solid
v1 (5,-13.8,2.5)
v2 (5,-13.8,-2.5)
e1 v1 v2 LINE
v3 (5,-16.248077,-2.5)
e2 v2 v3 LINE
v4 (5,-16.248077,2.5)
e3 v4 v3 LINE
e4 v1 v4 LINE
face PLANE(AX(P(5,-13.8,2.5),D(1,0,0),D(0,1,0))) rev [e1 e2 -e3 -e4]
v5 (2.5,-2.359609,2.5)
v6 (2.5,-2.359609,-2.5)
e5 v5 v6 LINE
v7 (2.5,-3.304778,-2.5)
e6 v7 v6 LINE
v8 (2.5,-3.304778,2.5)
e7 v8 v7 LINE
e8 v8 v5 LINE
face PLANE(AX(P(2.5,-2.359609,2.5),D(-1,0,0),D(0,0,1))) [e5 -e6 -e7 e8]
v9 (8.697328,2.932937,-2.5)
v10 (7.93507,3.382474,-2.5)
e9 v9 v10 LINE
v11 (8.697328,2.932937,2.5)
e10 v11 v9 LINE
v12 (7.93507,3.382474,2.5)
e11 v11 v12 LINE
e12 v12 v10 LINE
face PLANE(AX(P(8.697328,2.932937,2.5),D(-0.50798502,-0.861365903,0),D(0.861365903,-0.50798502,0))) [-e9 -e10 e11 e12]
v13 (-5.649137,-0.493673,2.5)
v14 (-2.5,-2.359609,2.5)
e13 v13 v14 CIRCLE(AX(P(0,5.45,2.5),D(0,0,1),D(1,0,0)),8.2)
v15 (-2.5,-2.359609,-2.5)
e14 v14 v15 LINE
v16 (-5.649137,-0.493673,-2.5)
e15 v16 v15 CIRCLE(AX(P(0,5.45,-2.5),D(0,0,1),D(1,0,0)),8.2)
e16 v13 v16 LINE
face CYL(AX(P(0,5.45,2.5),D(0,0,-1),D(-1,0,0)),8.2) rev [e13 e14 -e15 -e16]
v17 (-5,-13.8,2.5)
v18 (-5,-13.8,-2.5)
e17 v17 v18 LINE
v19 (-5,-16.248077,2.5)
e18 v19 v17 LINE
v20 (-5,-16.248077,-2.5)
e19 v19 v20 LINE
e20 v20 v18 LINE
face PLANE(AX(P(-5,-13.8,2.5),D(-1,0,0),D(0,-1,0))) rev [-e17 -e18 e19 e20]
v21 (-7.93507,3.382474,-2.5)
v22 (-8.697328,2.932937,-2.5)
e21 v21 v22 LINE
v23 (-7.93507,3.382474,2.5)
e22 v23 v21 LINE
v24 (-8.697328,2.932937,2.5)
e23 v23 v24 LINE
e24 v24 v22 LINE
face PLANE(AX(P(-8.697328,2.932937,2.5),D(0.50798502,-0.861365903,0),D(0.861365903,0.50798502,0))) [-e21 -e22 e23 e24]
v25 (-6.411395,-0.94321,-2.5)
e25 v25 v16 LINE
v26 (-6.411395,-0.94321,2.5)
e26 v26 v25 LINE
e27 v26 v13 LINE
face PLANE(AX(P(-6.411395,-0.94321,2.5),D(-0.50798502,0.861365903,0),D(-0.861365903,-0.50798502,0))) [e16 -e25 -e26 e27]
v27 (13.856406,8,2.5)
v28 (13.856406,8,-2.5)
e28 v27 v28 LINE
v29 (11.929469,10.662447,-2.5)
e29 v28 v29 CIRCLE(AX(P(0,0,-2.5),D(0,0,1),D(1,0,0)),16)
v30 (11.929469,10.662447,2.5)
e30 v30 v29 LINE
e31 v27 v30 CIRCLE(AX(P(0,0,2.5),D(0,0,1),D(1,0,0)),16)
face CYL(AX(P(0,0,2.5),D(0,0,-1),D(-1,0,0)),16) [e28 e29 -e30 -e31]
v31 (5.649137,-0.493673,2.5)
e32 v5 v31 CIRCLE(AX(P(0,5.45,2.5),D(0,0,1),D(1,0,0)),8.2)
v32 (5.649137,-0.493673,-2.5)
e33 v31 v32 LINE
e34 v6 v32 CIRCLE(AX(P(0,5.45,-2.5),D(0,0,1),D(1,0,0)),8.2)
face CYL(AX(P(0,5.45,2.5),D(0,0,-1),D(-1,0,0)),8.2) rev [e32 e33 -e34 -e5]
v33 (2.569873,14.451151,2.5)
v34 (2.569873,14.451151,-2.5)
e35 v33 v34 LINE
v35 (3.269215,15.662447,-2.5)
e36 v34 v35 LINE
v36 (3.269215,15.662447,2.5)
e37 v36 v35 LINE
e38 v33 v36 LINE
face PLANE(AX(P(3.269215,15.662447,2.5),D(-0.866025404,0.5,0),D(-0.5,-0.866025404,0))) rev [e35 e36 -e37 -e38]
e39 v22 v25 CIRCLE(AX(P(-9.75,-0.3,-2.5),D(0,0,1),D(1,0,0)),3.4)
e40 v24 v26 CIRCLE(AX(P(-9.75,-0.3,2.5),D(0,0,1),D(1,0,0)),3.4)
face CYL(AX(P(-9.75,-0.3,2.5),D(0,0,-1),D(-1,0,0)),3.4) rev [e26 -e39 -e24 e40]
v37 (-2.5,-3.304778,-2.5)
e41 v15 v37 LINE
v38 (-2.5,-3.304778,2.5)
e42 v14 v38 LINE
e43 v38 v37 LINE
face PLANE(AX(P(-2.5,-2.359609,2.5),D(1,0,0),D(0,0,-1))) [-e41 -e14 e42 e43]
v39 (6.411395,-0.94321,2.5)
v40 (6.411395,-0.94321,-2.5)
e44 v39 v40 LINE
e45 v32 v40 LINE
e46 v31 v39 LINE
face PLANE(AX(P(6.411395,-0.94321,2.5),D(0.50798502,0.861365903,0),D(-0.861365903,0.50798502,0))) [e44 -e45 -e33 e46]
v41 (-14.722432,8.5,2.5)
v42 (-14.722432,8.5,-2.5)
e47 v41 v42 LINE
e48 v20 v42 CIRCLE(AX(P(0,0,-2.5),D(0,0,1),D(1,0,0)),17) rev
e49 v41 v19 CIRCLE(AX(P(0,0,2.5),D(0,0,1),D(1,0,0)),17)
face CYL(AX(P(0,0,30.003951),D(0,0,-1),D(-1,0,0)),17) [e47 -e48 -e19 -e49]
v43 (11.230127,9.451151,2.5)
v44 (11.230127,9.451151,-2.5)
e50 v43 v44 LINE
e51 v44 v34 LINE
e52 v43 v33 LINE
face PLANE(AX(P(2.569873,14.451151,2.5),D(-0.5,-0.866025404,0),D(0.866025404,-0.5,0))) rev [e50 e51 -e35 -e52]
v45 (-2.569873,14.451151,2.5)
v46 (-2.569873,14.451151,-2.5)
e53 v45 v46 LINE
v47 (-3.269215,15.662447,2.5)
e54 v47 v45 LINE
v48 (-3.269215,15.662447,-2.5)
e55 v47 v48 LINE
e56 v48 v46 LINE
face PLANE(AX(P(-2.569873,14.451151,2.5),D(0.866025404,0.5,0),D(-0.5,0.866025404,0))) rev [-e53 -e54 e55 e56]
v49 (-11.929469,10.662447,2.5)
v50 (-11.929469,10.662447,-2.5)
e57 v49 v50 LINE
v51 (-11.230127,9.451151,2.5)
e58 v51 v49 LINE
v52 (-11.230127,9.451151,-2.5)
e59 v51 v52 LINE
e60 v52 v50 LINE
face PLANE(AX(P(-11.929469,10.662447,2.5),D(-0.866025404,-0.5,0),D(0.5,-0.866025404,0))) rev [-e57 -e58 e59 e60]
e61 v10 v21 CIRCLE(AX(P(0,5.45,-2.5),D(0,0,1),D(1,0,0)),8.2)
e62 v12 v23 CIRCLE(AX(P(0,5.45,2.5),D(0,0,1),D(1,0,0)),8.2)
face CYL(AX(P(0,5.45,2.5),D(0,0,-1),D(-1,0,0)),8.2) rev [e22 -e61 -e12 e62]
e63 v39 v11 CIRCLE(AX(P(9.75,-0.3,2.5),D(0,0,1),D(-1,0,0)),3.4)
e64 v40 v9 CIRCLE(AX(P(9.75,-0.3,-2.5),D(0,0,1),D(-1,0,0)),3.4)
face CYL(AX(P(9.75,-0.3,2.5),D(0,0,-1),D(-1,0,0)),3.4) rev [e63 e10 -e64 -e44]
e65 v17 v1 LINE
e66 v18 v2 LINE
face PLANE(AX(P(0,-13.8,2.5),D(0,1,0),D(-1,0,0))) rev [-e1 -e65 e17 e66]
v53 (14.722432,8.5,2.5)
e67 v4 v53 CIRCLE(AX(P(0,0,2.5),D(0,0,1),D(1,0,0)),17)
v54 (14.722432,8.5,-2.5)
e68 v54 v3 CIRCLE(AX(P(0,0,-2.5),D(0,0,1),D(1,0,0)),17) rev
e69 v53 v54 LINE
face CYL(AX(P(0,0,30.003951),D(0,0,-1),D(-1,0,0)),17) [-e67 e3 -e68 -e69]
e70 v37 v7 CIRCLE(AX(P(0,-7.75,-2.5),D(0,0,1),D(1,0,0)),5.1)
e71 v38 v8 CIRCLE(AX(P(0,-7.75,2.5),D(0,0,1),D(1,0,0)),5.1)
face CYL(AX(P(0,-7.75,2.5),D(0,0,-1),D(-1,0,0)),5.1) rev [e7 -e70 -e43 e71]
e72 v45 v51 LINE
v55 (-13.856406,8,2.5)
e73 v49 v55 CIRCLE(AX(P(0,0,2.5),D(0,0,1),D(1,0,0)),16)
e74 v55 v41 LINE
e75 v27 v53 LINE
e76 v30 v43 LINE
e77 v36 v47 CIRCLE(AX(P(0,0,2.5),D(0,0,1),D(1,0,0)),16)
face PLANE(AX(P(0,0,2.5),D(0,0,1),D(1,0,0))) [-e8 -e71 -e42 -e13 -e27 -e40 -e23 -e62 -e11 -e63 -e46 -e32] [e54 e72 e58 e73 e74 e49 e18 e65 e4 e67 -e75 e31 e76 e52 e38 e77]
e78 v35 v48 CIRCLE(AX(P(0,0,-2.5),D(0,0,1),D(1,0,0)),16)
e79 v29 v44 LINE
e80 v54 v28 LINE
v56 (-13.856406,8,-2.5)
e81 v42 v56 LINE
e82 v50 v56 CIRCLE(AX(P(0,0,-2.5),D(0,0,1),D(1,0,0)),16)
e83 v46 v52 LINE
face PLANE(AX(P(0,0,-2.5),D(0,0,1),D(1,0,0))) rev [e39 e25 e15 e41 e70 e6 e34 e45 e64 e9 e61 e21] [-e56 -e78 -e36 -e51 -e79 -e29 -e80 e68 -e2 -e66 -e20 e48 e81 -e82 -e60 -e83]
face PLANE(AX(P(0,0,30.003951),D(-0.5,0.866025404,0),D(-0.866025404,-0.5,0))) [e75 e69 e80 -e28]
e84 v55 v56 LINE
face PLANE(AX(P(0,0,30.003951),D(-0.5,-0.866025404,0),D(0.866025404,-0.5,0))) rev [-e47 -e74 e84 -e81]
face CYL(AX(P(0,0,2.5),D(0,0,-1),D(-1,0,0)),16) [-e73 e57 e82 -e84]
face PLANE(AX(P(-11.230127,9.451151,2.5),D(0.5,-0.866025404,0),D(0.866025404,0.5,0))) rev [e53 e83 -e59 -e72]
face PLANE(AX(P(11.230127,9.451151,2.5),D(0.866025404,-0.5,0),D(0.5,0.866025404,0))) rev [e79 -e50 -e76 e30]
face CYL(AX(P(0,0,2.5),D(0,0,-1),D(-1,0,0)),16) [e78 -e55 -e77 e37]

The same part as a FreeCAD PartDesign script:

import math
import FreeCAD as App
import Part
import Sketcher
from FreeCAD import Vector
Q = App.Units.Quantity

doc = App.newDocument("Part")
body = doc.addObject("PartDesign::Body", "Body")

sketch1 = body.newObject("Sketcher::SketchObject", "Sketch")
sketch1.AttachmentSupport = (doc.getObject("XY_Plane"), [""])
sketch1.MapMode = "FlatFace"
sketch1.addGeometry([
    Part.LineSegment(Vector(2.6, 14.5, 0), Vector(3.3, 15.7, 0)),
    Part.ArcOfCircle(Part.Circle(Vector(0, 0, 0), Vector(0, 0, 1), 16), math.radians(78), math.radians(102)),
    Part.LineSegment(Vector(-3.3, 15.7, 0), Vector(-2.6, 14.5, 0)),
    Part.LineSegment(Vector(-2.6, 14.5, 0), Vector(-11.2, 9.5, 0)),
    Part.LineSegment(Vector(-11.2, 9.5, 0), Vector(-11.9, 10.7, 0)),
    Part.ArcOfCircle(Part.Circle(Vector(0, 0, 0), Vector(0, 0, 1), 16), math.radians(138), math.radians(252)),
    Part.LineSegment(Vector(-5, -15.2, 0), Vector(-5, -13.8, 0)),
    Part.LineSegment(Vector(-5, -13.8, 0), Vector(5, -13.8, 0)),
    Part.LineSegment(Vector(5, -13.8, 0), Vector(5, -15.2, 0)),
    Part.ArcOfCircle(Part.Circle(Vector(0, 0, 0), Vector(0, 0, 1), 16), math.radians(-72), math.radians(42)),
    Part.LineSegment(Vector(11.9, 10.7, 0), Vector(11.2, 9.5, 0)),
    Part.LineSegment(Vector(11.2, 9.5, 0), Vector(2.6, 14.5, 0)),
    Part.ArcOfCircle(Part.Circle(Vector(0, 5.5, 0), Vector(0, 0, 1), 8.2), math.radians(-134), math.radians(-108)),
    Part.LineSegment(Vector(-5.6, -0.5, 0), Vector(-6.4, -0.9, 0)),
    Part.ArcOfCircle(Part.Circle(Vector(-9.8, -0.3, 0), Vector(0, 0, 1), 3.4), math.radians(72), math.radians(349)),
    Part.LineSegment(Vector(-8.7, 2.9, 0), Vector(-7.9, 3.4, 0)),
    Part.ArcOfCircle(Part.Circle(Vector(0, 5.5, 0), Vector(0, 0, 1), 8.2), math.radians(-15), math.radians(195)),
    Part.LineSegment(Vector(7.9, 3.4, 0), Vector(8.7, 2.9, 0)),
    Part.ArcOfCircle(Part.Circle(Vector(9.8, -0.3, 0), Vector(0, 0, 1), 3.4), math.radians(-169), math.radians(108)),
    Part.LineSegment(Vector(6.4, -0.9, 0), Vector(5.6, -0.5, 0)),
    Part.ArcOfCircle(Part.Circle(Vector(0, 5.5, 0), Vector(0, 0, 1), 8.2), math.radians(-72), math.radians(-46)),
    Part.LineSegment(Vector(2.5, -2.4, 0), Vector(2.5, -3.3, 0)),
    Part.ArcOfCircle(Part.Circle(Vector(0, -7.8, 0), Vector(0, 0, 1), 5.1), math.radians(119), math.radians(421)),
    Part.LineSegment(Vector(-2.5, -3.3, 0), Vector(-2.5, -2.4, 0)),
], False)
sketch1.addConstraint([
    Sketcher.Constraint("Coincident", 0, 2, 1, 1),
    Sketcher.Constraint("Coincident", 1, 2, 2, 1),
    Sketcher.Constraint("Coincident", 2, 2, 3, 1),
    Sketcher.Constraint("Coincident", 3, 2, 4, 1),
    Sketcher.Constraint("Coincident", 4, 2, 5, 1),
    Sketcher.Constraint("Coincident", 5, 2, 6, 1),
    Sketcher.Constraint("Coincident", 6, 2, 7, 1),
    Sketcher.Constraint("Coincident", 7, 2, 8, 1),
    Sketcher.Constraint("Coincident", 8, 2, 9, 1),
    Sketcher.Constraint("Coincident", 9, 2, 10, 1),
    Sketcher.Constraint("Coincident", 10, 2, 11, 1),
    Sketcher.Constraint("Coincident", 11, 2, 0, 1),
    Sketcher.Constraint("Coincident", 12, 1, 13, 1),
    Sketcher.Constraint("Coincident", 13, 2, 14, 2),
    Sketcher.Constraint("Coincident", 14, 1, 15, 1),
    Sketcher.Constraint("Coincident", 15, 2, 16, 2),
    Sketcher.Constraint("Coincident", 16, 1, 17, 1),
    Sketcher.Constraint("Coincident", 17, 2, 18, 2),
    Sketcher.Constraint("Coincident", 18, 1, 19, 1),
    Sketcher.Constraint("Coincident", 19, 2, 20, 2),
    Sketcher.Constraint("Coincident", 20, 1, 21, 1),
    Sketcher.Constraint("Coincident", 21, 2, 22, 2),
    Sketcher.Constraint("Coincident", 22, 1, 23, 1),
    Sketcher.Constraint("Coincident", 23, 2, 12, 2),
    Sketcher.Constraint("Vertical", 6),
    Sketcher.Constraint("Horizontal", 7),
    Sketcher.Constraint("Vertical", 8),
    Sketcher.Constraint("Vertical", 21),
    Sketcher.Constraint("Vertical", 23),
    Sketcher.Constraint("Coincident", 1, 3, -1, 1),
    Sketcher.Constraint("Coincident", 5, 3, -1, 1),
    Sketcher.Constraint("Coincident", 9, 3, -1, 1),
    Sketcher.Constraint("Coincident", 16, 3, 12, 3),
    Sketcher.Constraint("Coincident", 20, 3, 12, 3),
    Sketcher.Constraint("Equal", 1, 5),
    Sketcher.Constraint("Equal", 5, 9),
    Sketcher.Constraint("Equal", 12, 16),
    Sketcher.Constraint("Equal", 14, 18),
    Sketcher.Constraint("Equal", 16, 20),
    Sketcher.Constraint("Symmetric", 14, 3, 18, 3, -2),
    Sketcher.Constraint("Symmetric", 3, 2, 10, 2, -2),
    Sketcher.Constraint("Symmetric", 2, 2, 11, 2, -2),
    Sketcher.Constraint("Symmetric", 15, 2, 16, 1, -2),
    Sketcher.Constraint("Symmetric", 21, 2, 22, 1, -2),
    Sketcher.Constraint("Perpendicular", 2, 3),
    Sketcher.Constraint("Perpendicular", 3, 4),
    Sketcher.Constraint("Parallel", 0, 10),
    Sketcher.Constraint("Perpendicular", 10, 11),
    Sketcher.Constraint("Parallel", 13, 15),
    Sketcher.Constraint("Parallel", 17, 19),
    Sketcher.Constraint("Horizontal", 5, 2, 8, 2),
    Sketcher.Constraint("Horizontal", 14, 1, 17, 2),
    Sketcher.Constraint("Horizontal", 13, 2, 18, 1),
    Sketcher.Constraint("Equal", 2, 4),
    Sketcher.Constraint("Equal", 13, 15),
    Sketcher.Constraint("Radius", 1, Q("16 mm")),
    Sketcher.Constraint("Radius", 12, Q("8.2 mm")),
    Sketcher.Constraint("Radius", 14, Q("3.4 mm")),
    Sketcher.Constraint("Radius", 22, Q("5.1 mm")),
    Sketcher.Constraint("DistanceX", 7, 1, 7, 2, Q("10 mm")),
    Sketcher.Constraint("Angle", 0, Q("60 deg")),
    Sketcher.Constraint("Distance", 3, Q("10 mm")),
    Sketcher.Constraint("DistanceY", 14, 3, -1, 1, Q("0.3 mm")),
    Sketcher.Constraint("DistanceY", 6, 2, -1, 1, Q("13.8 mm")),
    Sketcher.Constraint("DistanceX", -1, 1, 20, 1, Q("2.5 mm")),
    Sketcher.Constraint("DistanceY", -1, 1, 12, 3, Q("5.45 mm")),
    Sketcher.Constraint("DistanceX", 14, 3, -1, 1, Q("9.75 mm")),
    Sketcher.Constraint("DistanceY", 22, 3, -1, 1, Q("7.75 mm")),
    Sketcher.Constraint("DistanceX", 3, 2, 14, 1, Q("2.532799 mm")),
    Sketcher.Constraint("DistanceY", 20, 1, 18, 1, Q("1.4164 mm")),
    Sketcher.Constraint("Distance", 13, Q("0.884941 mm")),
])
pad1 = body.newObject("PartDesign::Pad", "Pad")
pad1.Profile = sketch1
pad1.Length = 5
pad1.Midplane = True

sketch2 = body.newObject("Sketcher::SketchObject", "Sketch001")
sketch2.AttachmentSupport = (doc.getObject("XY_Plane"), [""])
sketch2.MapMode = "FlatFace"
sketch2.AttachmentOffset = App.Placement(Vector(0, 0, -2.5), App.Rotation())
sketch2.addGeometry([
    Part.ArcOfCircle(Part.Circle(Vector(0, 0, 0), Vector(0, 0, 1), 16), math.radians(150), math.radians(252)),
    Part.LineSegment(Vector(-13.9, 8, 0), Vector(-14.7, 8.5, 0)),
    Part.ArcOfCircle(Part.Circle(Vector(0, 0, 0), Vector(0, 0, 1), 17), math.radians(150), math.radians(253)),
    Part.LineSegment(Vector(-5, -16.2, 0), Vector(-5, -15.2, 0)),
    Part.LineSegment(Vector(14.7, 8.5, 0), Vector(13.9, 8, 0)),
    Part.ArcOfCircle(Part.Circle(Vector(0, 0, 0), Vector(0, 0, 1), 16), math.radians(-72), math.radians(30)),
    Part.LineSegment(Vector(5, -15.2, 0), Vector(5, -16.2, 0)),
    Part.ArcOfCircle(Part.Circle(Vector(0, 0, 0), Vector(0, 0, 1), 17), math.radians(-73), math.radians(30)),
], False)
sketch2.addConstraint([
    Sketcher.Constraint("Coincident", 0, 1, 1, 1),
    Sketcher.Constraint("Coincident", 1, 2, 2, 1),
    Sketcher.Constraint("Coincident", 2, 2, 3, 1),
    Sketcher.Constraint("Coincident", 3, 2, 0, 2),
    Sketcher.Constraint("Coincident", 4, 2, 5, 2),
    Sketcher.Constraint("Coincident", 5, 1, 6, 1),
    Sketcher.Constraint("Coincident", 6, 2, 7, 1),
    Sketcher.Constraint("Coincident", 7, 2, 4, 1),
    Sketcher.Constraint("Vertical", 3),
    Sketcher.Constraint("Vertical", 6),
    Sketcher.Constraint("Coincident", 0, 3, -1, 1),
    Sketcher.Constraint("Coincident", 2, 3, -1, 1),
    Sketcher.Constraint("Coincident", 5, 3, -1, 1),
    Sketcher.Constraint("Coincident", 7, 3, -1, 1),
    Sketcher.Constraint("Equal", 0, 5),
    Sketcher.Constraint("Equal", 2, 7),
    Sketcher.Constraint("Horizontal", 0, 1, 4, 2),
    Sketcher.Constraint("Horizontal", 3, 2, 5, 1),
    Sketcher.Constraint("Horizontal", 1, 2, 7, 2),
    Sketcher.Constraint("Radius", 0, Q("16 mm")),
    Sketcher.Constraint("Radius", 2, Q("17 mm")),
    Sketcher.Constraint("Angle", 1, Q("150 deg")),
    Sketcher.Constraint("DistanceY", -1, 1, 0, 1, Q("8 mm")),
    Sketcher.Constraint("DistanceX", 2, 2, -1, 1, Q("5 mm")),
])
pad2 = body.newObject("PartDesign::Pad", "Pad001")
pad2.Profile = sketch2
pad2.Length = 5

doc.recompute()
